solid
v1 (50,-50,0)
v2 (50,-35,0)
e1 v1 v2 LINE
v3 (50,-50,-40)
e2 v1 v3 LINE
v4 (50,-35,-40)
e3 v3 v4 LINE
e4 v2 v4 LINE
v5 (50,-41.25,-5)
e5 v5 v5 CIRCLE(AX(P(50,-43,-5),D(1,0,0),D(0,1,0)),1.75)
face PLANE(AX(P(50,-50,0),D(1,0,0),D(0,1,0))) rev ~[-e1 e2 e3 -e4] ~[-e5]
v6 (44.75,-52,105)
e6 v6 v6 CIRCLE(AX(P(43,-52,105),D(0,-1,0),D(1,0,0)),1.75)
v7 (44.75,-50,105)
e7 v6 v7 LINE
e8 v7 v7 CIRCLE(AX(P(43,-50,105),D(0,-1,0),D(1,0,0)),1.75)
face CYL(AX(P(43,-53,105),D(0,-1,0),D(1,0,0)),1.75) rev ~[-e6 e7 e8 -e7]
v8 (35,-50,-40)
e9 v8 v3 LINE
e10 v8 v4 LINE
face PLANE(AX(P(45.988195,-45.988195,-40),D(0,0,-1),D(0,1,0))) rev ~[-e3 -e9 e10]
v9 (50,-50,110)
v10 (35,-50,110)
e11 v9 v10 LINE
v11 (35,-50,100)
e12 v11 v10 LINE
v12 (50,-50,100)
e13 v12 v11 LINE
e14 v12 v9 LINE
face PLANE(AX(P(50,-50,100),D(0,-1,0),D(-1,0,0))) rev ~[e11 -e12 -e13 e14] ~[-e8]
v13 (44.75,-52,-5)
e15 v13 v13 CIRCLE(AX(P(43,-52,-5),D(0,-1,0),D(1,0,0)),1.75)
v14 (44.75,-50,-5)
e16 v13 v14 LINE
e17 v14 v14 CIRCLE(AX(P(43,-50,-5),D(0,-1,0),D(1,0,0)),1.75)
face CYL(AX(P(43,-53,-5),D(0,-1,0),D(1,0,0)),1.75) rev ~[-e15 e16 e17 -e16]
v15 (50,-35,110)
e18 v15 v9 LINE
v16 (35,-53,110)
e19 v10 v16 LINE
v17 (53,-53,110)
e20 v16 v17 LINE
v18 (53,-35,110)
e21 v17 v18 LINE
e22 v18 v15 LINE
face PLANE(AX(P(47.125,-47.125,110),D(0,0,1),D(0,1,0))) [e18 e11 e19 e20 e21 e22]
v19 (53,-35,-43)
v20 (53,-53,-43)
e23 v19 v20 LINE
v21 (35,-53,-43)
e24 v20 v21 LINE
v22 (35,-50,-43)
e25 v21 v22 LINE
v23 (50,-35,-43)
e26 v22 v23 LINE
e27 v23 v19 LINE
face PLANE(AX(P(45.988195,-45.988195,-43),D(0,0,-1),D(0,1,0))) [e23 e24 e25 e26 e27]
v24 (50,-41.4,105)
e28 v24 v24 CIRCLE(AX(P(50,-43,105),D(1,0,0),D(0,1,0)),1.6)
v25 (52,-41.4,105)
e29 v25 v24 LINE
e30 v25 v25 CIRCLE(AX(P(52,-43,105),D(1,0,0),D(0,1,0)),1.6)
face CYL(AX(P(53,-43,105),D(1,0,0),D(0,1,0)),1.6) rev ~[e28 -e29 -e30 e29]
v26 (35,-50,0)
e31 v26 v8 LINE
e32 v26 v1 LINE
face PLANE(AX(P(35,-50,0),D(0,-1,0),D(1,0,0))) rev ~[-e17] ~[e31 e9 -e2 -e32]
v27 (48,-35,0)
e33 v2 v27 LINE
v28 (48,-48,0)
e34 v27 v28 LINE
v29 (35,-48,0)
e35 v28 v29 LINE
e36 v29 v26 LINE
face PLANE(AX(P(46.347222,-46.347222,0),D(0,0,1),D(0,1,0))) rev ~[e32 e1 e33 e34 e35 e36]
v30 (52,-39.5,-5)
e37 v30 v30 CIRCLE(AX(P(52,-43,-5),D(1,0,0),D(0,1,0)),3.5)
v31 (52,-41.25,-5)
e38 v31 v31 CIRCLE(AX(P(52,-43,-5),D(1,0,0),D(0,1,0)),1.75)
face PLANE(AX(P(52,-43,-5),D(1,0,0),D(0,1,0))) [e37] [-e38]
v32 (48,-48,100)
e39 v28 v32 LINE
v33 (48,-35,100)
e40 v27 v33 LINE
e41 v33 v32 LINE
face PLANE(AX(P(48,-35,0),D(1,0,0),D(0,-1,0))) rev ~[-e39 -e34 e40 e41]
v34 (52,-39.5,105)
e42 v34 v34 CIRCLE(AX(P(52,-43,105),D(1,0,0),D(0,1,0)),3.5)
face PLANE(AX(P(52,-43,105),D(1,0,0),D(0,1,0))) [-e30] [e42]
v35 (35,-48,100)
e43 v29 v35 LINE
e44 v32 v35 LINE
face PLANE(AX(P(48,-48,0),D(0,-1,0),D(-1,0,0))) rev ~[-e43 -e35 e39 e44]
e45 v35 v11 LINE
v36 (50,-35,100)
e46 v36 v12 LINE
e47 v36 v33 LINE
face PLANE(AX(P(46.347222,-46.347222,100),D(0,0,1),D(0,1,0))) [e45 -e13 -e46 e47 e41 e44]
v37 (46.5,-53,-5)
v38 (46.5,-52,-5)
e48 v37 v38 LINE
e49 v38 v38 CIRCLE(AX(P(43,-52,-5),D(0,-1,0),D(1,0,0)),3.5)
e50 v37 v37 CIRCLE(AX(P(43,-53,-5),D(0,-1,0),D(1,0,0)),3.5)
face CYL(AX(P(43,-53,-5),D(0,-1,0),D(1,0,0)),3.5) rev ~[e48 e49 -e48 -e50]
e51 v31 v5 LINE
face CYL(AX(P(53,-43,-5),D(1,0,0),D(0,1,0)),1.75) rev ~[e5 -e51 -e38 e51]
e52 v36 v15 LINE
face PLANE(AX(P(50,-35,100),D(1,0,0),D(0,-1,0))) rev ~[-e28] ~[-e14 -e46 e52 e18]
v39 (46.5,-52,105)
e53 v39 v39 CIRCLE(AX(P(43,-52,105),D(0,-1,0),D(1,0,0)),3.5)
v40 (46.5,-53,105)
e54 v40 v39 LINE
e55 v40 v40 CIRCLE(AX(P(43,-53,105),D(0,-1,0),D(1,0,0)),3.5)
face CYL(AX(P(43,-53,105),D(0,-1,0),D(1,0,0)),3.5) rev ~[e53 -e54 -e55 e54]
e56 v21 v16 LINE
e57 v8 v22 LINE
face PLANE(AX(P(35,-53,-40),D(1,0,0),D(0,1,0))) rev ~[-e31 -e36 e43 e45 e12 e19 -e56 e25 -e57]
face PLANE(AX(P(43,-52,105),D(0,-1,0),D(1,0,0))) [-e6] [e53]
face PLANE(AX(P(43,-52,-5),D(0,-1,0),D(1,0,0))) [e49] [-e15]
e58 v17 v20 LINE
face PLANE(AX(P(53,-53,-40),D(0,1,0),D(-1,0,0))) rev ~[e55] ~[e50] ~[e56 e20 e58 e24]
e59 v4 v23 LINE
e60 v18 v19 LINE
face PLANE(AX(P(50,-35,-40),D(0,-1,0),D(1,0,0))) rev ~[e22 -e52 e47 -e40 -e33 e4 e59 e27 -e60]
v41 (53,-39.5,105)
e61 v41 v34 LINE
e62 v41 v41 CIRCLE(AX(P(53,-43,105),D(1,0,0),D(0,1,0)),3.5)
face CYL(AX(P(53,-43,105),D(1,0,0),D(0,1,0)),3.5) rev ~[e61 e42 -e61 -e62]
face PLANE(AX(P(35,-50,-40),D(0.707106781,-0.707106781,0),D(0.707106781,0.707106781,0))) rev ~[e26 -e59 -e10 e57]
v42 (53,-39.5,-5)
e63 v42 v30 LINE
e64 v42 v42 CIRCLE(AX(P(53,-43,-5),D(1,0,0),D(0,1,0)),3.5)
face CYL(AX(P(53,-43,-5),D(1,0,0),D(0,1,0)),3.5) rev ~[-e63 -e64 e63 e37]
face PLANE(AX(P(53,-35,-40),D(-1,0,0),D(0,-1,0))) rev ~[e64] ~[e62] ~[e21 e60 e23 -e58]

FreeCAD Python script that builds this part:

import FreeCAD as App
import Part
import Sketcher

V = App.Vector

doc = App.newDocument("Part")
body = doc.addObject("PartDesign::Body", "Body")

# Sketch on XY plane
sketch1 = body.newObject("Sketcher::SketchObject", "Sketch")
sketch1.AttachmentSupport = (doc.getObject("XY_Plane"), [""])
sketch1.MapMode = "FlatFace"
sketch1.addGeometry([
    Part.LineSegment(V(-53, -35, 0), V(-53, -53, 0)),  # 0
    Part.LineSegment(V(-53, -53, 0), V(-35, -53, 0)),  # 1
    Part.LineSegment(V(-35, -53, 0), V(-35, -48, 0)),  # 2
    Part.LineSegment(V(-35, -48, 0), V(-48, -48, 0)),  # 3
    Part.LineSegment(V(-48, -48, 0), V(-48, -35, 0)),  # 4
    Part.LineSegment(V(-48, -35, 0), V(-53, -35, 0)),  # 5
], False)
sketch1.addConstraint([
    Sketcher.Constraint("Coincident", 0, 2, 1, 1),
    Sketcher.Constraint("Coincident", 1, 2, 2, 1),
    Sketcher.Constraint("Coincident", 2, 2, 3, 1),
    Sketcher.Constraint("Coincident", 3, 2, 4, 1),
    Sketcher.Constraint("Coincident", 4, 2, 5, 1),
    Sketcher.Constraint("Coincident", 5, 2, 0, 1),
    Sketcher.Constraint("Vertical", 0),
    Sketcher.Constraint("Horizontal", 1),
    Sketcher.Constraint("Vertical", 2),
    Sketcher.Constraint("Horizontal", 3),
    Sketcher.Constraint("Vertical", 4),
    Sketcher.Constraint("Horizontal", 5),
    Sketcher.Constraint("Equal", 1, 0),
    Sketcher.Constraint("Equal", 5, 2),
    Sketcher.Constraint("DistanceX", 1, 1, 1, 2, 18.0),
    Sketcher.Constraint("DistanceX", 3, 2, 3, 1, 13.0),
    Sketcher.Constraint("DistanceX", 0, 2, -1, 1, 53.0),
    Sketcher.Constraint("DistanceY", 0, 2, -1, 1, 53.0),
])
pad1 = body.newObject("PartDesign::Pad", "Pad")
pad1.Profile = sketch1
pad1.Length = 100

# Sketch on XY plane
sketch2 = body.newObject("Sketcher::SketchObject", "Sketch001")
sketch2.AttachmentSupport = (doc.getObject("XY_Plane"), [""])
sketch2.MapMode = "FlatFace"
sketch2.AttachmentOffset = App.Placement(V(0, 0, 100), App.Rotation())
sketch2.addGeometry([
    Part.LineSegment(V(-53, -35, 0), V(-53, -53, 0)),  # 0
    Part.LineSegment(V(-53, -53, 0), V(-35, -53, 0)),  # 1
    Part.LineSegment(V(-35, -53, 0), V(-35, -50, 0)),  # 2
    Part.LineSegment(V(-35, -50, 0), V(-50, -50, 0)),  # 3
    Part.LineSegment(V(-50, -50, 0), V(-50, -35, 0)),  # 4
    Part.LineSegment(V(-50, -35, 0), V(-53, -35, 0)),  # 5
], False)
sketch2.addConstraint([
    Sketcher.Constraint("Coincident", 0, 2, 1, 1),
    Sketcher.Constraint("Coincident", 1, 2, 2, 1),
    Sketcher.Constraint("Coincident", 2, 2, 3, 1),
    Sketcher.Constraint("Coincident", 3, 2, 4, 1),
    Sketcher.Constraint("Coincident", 4, 2, 5, 1),
    Sketcher.Constraint("Coincident", 5, 2, 0, 1),
    Sketcher.Constraint("Vertical", 0),
    Sketcher.Constraint("Horizontal", 1),
    Sketcher.Constraint("Vertical", 2),
    Sketcher.Constraint("Horizontal", 3),
    Sketcher.Constraint("Vertical", 4),
    Sketcher.Constraint("Horizontal", 5),
    Sketcher.Constraint("Equal", 1, 0),
    Sketcher.Constraint("Equal", 5, 2),
    Sketcher.Constraint("DistanceX", 1, 1, 1, 2, 18.0),
    Sketcher.Constraint("DistanceX", 3, 2, 3, 1, 15.0),
    Sketcher.Constraint("DistanceX", 0, 2, -1, 1, 53.0),
    Sketcher.Constraint("DistanceY", 0, 2, -1, 1, 53.0),
])
pad2 = body.newObject("PartDesign::Pad", "Pad001")
pad2.Profile = sketch2
pad2.Length = 10

# Sketch on XZ plane
sketch3 = body.newObject("Sketcher::SketchObject", "Sketch002")
sketch3.AttachmentSupport = (doc.getObject("XZ_Plane"), [""])
sketch3.MapMode = "FlatFace"
sketch3.AttachmentOffset = App.Placement(V(0, 0, 53), App.Rotation())
sketch3.addGeometry(Part.Circle(V(-43, 105, 0), V(0, 0, 1), 1.6), False)
sketch3.addConstraint([
    Sketcher.Constraint("Diameter", 0, 3.2),
    Sketcher.Constraint("DistanceX", 0, 3, -1, 1, 43.0),
    Sketcher.Constraint("DistanceY", -1, 1, 0, 3, 105.0),
])
pocket1 = body.newObject("PartDesign::Pocket", "Pocket")
pocket1.Profile = sketch3
pocket1.Length = 5

# Sketch on XZ plane
sketch4 = body.newObject("Sketcher::SketchObject", "Sketch003")
sketch4.AttachmentSupport = (doc.getObject("XZ_Plane"), [""])
sketch4.MapMode = "FlatFace"
sketch4.AttachmentOffset = App.Placement(V(0, 0, 53), App.Rotation())
sketch4.addGeometry(Part.Circle(V(-43, 105, 0), V(0, 0, 1), 3.5), False)
sketch4.addConstraint([
    Sketcher.Constraint("Diameter", 0, 7.0),
    Sketcher.Constraint("DistanceX", 0, 3, -1, 1, 43.0),
    Sketcher.Constraint("DistanceY", -1, 1, 0, 3, 105.0),
])
pocket2 = body.newObject("PartDesign::Pocket", "Pocket001")
pocket2.Profile = sketch4
pocket2.Length = 1

# Sketch on YZ plane
sketch5 = body.newObject("Sketcher::SketchObject", "Sketch004")
sketch5.AttachmentSupport = (doc.getObject("YZ_Plane"), [""])
sketch5.MapMode = "FlatFace"
sketch5.AttachmentOffset = App.Placement(V(0, 0, -53), App.Rotation())
sketch5.addGeometry(Part.Circle(V(-43, 105, 0), V(0, 0, 1), 1.8), False)
sketch5.addConstraint([
    Sketcher.Constraint("Diameter", 0, 3.5),
    Sketcher.Constraint("DistanceX", 0, 3, -1, 1, 43.0),
    Sketcher.Constraint("DistanceY", -1, 1, 0, 3, 105.0),
])
pocket3 = body.newObject("PartDesign::Pocket", "Pocket002")
pocket3.Profile = sketch5
pocket3.Length = 5
pocket3.Reversed = True

# Sketch on YZ plane
sketch6 = body.newObject("Sketcher::SketchObject", "Sketch005")
sketch6.AttachmentSupport = (doc.getObject("YZ_Plane"), [""])
sketch6.MapMode = "FlatFace"
sketch6.AttachmentOffset = App.Placement(V(0, 0, -53), App.Rotation())
sketch6.addGeometry(Part.Circle(V(-43, 105, 0), V(0, 0, 1), 3.5), False)
sketch6.addConstraint([
    Sketcher.Constraint("Diameter", 0, 7.0),
    Sketcher.Constraint("DistanceX", 0, 3, -1, 1, 43.0),
    Sketcher.Constraint("DistanceY", -1, 1, 0, 3, 105.0),
])
pocket4 = body.newObject("PartDesign::Pocket", "Pocket003")
pocket4.Profile = sketch6
pocket4.Length = 1
pocket4.Reversed = True

# Sketch on XY plane
sketch7 = body.newObject("Sketcher::SketchObject", "Sketch006")
sketch7.AttachmentSupport = (doc.getObject("XY_Plane"), [""])
sketch7.MapMode = "FlatFace"
sketch7.addGeometry([
    Part.LineSegment(V(-35, -53, 0), V(-53, -53, 0)),  # 0
    Part.LineSegment(V(-53, -53, 0), V(-53, -35, 0)),  # 1
    Part.LineSegment(V(-53, -35, 0), V(-50, -35, 0)),  # 2
    Part.LineSegment(V(-50, -35, 0), V(-50, -50, 0)),  # 3
    Part.LineSegment(V(-50, -50, 0), V(-35, -50, 0)),  # 4
    Part.LineSegment(V(-35, -50, 0), V(-35, -53, 0)),  # 5
], False)
sketch7.addConstraint([
    Sketcher.Constraint("Coincident", 0, 2, 1, 1),
    Sketcher.Constraint("Coincident", 1, 2, 2, 1),
    Sketcher.Constraint("Coincident", 2, 2, 3, 1),
    Sketcher.Constraint("Coincident", 3, 2, 4, 1),
    Sketcher.Constraint("Coincident", 4, 2, 5, 1),
    Sketcher.Constraint("Coincident", 5, 2, 0, 1),
    Sketcher.Constraint("Horizontal", 0),
    Sketcher.Constraint("Vertical", 1),
    Sketcher.Constraint("Horizontal", 2),
    Sketcher.Constraint("Vertical", 3),
    Sketcher.Constraint("Horizontal", 4),
    Sketcher.Constraint("Vertical", 5),
    Sketcher.Constraint("Equal", 0, 1),
    Sketcher.Constraint("Equal", 4, 3),
    Sketcher.Constraint("DistanceX", 0, 2, 0, 1, 18.0),
    Sketcher.Constraint("DistanceX", 2, 1, 2, 2, 3.0),
    Sketcher.Constraint("DistanceX", 0, 2, -1, 1, 53.0),
    Sketcher.Constraint("DistanceY", 0, 2, -1, 1, 53.0),
])
pad3 = body.newObject("PartDesign::Pad", "Pad002")
pad3.Profile = sketch7
pad3.Length = 40
pad3.Reversed = True

# Sketch on XY plane
sketch8 = body.newObject("Sketcher::SketchObject", "Sketch007")
sketch8.AttachmentSupport = (doc.getObject("XY_Plane"), [""])
sketch8.MapMode = "FlatFace"
sketch8.AttachmentOffset = App.Placement(V(0, 0, -40), App.Rotation())
sketch8.addGeometry([
    Part.LineSegment(V(-35, -50, 0), V(-35, -53, 0)),  # 0
    Part.LineSegment(V(-35, -53, 0), V(-53, -53, 0)),  # 1
    Part.LineSegment(V(-53, -53, 0), V(-53, -35, 0)),  # 2
    Part.LineSegment(V(-53, -35, 0), V(-50, -35, 0)),  # 3
    Part.LineSegment(V(-50, -35, 0), V(-35, -50, 0)),  # 4
], False)
sketch8.addConstraint([
    Sketcher.Constraint("Coincident", 0, 2, 1, 1),
    Sketcher.Constraint("Coincident", 1, 2, 2, 1),
    Sketcher.Constraint("Coincident", 2, 2, 3, 1),
    Sketcher.Constraint("Coincident", 3, 2, 4, 1),
    Sketcher.Constraint("Coincident", 4, 2, 0, 1),
    Sketcher.Constraint("Vertical", 0),
    Sketcher.Constraint("Horizontal", 1),
    Sketcher.Constraint("Vertical", 2),
    Sketcher.Constraint("Horizontal", 3),
    Sketcher.Constraint("Equal", 3, 0),
    Sketcher.Constraint("Equal", 1, 2),
    Sketcher.Constraint("DistanceX", 1, 2, 1, 1, 18.0),
    Sketcher.Constraint("DistanceX", 3, 1, 3, 2, 3.0),
    Sketcher.Constraint("DistanceX", 0, 2, -1, 1, 35.0),
    Sketcher.Constraint("DistanceY", 0, 2, -1, 1, 53.0),
])
pad4 = body.newObject("PartDesign::Pad", "Pad003")
pad4.Profile = sketch8
pad4.Length = 3
pad4.Reversed = True

# Sketch on YZ plane
sketch9 = body.newObject("Sketcher::SketchObject", "Sketch008")
sketch9.AttachmentSupport = (doc.getObject("YZ_Plane"), [""])
sketch9.MapMode = "FlatFace"
sketch9.AttachmentOffset = App.Placement(V(0, 0, -53), App.Rotation())
sketch9.addGeometry(Part.Circle(V(-43, -5, 0), V(0, 0, 1), 1.8), False)
sketch9.addConstraint([
    Sketcher.Constraint("Diameter", 0, 3.5),
    Sketcher.Constraint("DistanceX", 0, 3, -1, 1, 43.0),
    Sketcher.Constraint("DistanceY", 0, 3, -1, 1, 5.0),
])
pocket5 = body.newObject("PartDesign::Pocket", "Pocket004")
pocket5.Profile = sketch9
pocket5.Length = 5
pocket5.Reversed = True

# Sketch on YZ plane
sketch10 = body.newObject("Sketcher::SketchObject", "Sketch009")
sketch10.AttachmentSupport = (doc.getObject("YZ_Plane"), [""])
sketch10.MapMode = "FlatFace"
sketch10.AttachmentOffset = App.Placement(V(0, 0, -53), App.Rotation())
sketch10.addGeometry(Part.Circle(V(-43, -5, 0), V(0, 0, 1), 3.5), False)
sketch10.addConstraint([
    Sketcher.Constraint("Diameter", 0, 7.0),
    Sketcher.Constraint("DistanceX", 0, 3, -1, 1, 43.0),
    Sketcher.Constraint("DistanceY", 0, 3, -1, 1, 5.0),
])
pocket6 = body.newObject("PartDesign::Pocket", "Pocket005")
pocket6.Profile = sketch10
pocket6.Length = 1
pocket6.Reversed = True

# Sketch on XZ plane
sketch11 = body.newObject("Sketcher::SketchObject", "Sketch010")
sketch11.AttachmentSupport = (doc.getObject("XZ_Plane"), [""])
sketch11.MapMode = "FlatFace"
sketch11.AttachmentOffset = App.Placement(V(0, 0, 53), App.Rotation())
sketch11.addGeometry(Part.Circle(V(-43, -5, 0), V(0, 0, 1), 1.8), False)
sketch11.addConstraint([
    Sketcher.Constraint("Diameter", 0, 3.5),
    Sketcher.Constraint("DistanceX", 0, 3, -1, 1, 43.0),
    Sketcher.Constraint("DistanceY", 0, 3, -1, 1, 5.0),
])
pocket7 = body.newObject("PartDesign::Pocket", "Pocket006")
pocket7.Profile = sketch11
pocket7.Length = 5

# Sketch on XZ plane
sketch12 = body.newObject("Sketcher::SketchObject", "Sketch011")
sketch12.AttachmentSupport = (doc.getObject("XZ_Plane"), [""])
sketch12.MapMode = "FlatFace"
sketch12.AttachmentOffset = App.Placement(V(0, 0, 53), App.Rotation())
sketch12.addGeometry(Part.Circle(V(-43, -5, 0), V(0, 0, 1), 3.5), False)
sketch12.addConstraint([
    Sketcher.Constraint("Diameter", 0, 7.0),
    Sketcher.Constraint("DistanceX", 0, 3, -1, 1, 43.0),
    Sketcher.Constraint("DistanceY", 0, 3, -1, 1, 5.0),
])
pocket8 = body.newObject("PartDesign::Pocket", "Pocket007")
pocket8.Profile = sketch12
pocket8.Length = 1
body2 = doc.addObject("PartDesign::Body", "Body001")
doc.recompute()

body.Placement = App.Placement(V(0, 0, 0), App.Rotation(V(0, 0, 1), 90))
boolean = body2.newObject("PartDesign::Boolean", "Boolean")
boolean.Type = "Fuse"
boolean.addObjects([body])

doc.recompute()
